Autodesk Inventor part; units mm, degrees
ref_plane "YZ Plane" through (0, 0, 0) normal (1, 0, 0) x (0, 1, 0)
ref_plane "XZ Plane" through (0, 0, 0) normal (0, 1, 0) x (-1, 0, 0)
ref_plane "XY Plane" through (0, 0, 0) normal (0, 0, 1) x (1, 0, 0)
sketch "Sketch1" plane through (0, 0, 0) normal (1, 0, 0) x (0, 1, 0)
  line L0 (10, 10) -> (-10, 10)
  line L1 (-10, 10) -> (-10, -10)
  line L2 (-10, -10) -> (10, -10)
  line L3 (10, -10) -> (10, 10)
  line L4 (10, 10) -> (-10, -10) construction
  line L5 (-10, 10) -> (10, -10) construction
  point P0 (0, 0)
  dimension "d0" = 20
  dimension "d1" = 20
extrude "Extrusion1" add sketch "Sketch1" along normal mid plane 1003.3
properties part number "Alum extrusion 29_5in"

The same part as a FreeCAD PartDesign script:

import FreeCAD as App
import Part
import Sketcher
from FreeCAD import Vector
Q = App.Units.Quantity

doc = App.newDocument("Part")
body = doc.addObject("PartDesign::Body", "Body")

# Sketch on YZ plane
sketch1 = body.newObject("Sketcher::SketchObject", "Sketch")
sketch1.AttachmentSupport = (doc.getObject("YZ_Plane"), [""])
sketch1.MapMode = "FlatFace"
sketch1.addGeometry([
    Part.LineSegment(Vector(10, -10, 0), Vector(10, 10, 0)),
    Part.LineSegment(Vector(10, 10, 0), Vector(-10, 10, 0)),
    Part.LineSegment(Vector(-10, 10, 0), Vector(-10, -10, 0)),
    Part.LineSegment(Vector(-10, -10, 0), Vector(10, -10, 0)),
], False)
sketch1.addConstraint([
    Sketcher.Constraint("Coincident", 0, 2, 1, 1),
    Sketcher.Constraint("Coincident", 1, 2, 2, 1),
    Sketcher.Constraint("Coincident", 2, 2, 3, 1),
    Sketcher.Constraint("Coincident", 3, 2, 0, 1),
    Sketcher.Constraint("Vertical", 0),
    Sketcher.Constraint("Horizontal", 1),
    Sketcher.Constraint("Vertical", 2),
    Sketcher.Constraint("Horizontal", 3),
    Sketcher.Constraint("Symmetric", 0, 2, 2, 2, -1, 1),
    Sketcher.Constraint("Equal", 3, 0),
    Sketcher.Constraint("DistanceX", 1, 2, 1, 1, Q("0.7874 in")),
])
pad1 = body.newObject("PartDesign::Pad", "Pad")
pad1.Profile = sketch1
pad1.Length = Q("39.5 in")
pad1.Midplane = True

doc.recompute()
